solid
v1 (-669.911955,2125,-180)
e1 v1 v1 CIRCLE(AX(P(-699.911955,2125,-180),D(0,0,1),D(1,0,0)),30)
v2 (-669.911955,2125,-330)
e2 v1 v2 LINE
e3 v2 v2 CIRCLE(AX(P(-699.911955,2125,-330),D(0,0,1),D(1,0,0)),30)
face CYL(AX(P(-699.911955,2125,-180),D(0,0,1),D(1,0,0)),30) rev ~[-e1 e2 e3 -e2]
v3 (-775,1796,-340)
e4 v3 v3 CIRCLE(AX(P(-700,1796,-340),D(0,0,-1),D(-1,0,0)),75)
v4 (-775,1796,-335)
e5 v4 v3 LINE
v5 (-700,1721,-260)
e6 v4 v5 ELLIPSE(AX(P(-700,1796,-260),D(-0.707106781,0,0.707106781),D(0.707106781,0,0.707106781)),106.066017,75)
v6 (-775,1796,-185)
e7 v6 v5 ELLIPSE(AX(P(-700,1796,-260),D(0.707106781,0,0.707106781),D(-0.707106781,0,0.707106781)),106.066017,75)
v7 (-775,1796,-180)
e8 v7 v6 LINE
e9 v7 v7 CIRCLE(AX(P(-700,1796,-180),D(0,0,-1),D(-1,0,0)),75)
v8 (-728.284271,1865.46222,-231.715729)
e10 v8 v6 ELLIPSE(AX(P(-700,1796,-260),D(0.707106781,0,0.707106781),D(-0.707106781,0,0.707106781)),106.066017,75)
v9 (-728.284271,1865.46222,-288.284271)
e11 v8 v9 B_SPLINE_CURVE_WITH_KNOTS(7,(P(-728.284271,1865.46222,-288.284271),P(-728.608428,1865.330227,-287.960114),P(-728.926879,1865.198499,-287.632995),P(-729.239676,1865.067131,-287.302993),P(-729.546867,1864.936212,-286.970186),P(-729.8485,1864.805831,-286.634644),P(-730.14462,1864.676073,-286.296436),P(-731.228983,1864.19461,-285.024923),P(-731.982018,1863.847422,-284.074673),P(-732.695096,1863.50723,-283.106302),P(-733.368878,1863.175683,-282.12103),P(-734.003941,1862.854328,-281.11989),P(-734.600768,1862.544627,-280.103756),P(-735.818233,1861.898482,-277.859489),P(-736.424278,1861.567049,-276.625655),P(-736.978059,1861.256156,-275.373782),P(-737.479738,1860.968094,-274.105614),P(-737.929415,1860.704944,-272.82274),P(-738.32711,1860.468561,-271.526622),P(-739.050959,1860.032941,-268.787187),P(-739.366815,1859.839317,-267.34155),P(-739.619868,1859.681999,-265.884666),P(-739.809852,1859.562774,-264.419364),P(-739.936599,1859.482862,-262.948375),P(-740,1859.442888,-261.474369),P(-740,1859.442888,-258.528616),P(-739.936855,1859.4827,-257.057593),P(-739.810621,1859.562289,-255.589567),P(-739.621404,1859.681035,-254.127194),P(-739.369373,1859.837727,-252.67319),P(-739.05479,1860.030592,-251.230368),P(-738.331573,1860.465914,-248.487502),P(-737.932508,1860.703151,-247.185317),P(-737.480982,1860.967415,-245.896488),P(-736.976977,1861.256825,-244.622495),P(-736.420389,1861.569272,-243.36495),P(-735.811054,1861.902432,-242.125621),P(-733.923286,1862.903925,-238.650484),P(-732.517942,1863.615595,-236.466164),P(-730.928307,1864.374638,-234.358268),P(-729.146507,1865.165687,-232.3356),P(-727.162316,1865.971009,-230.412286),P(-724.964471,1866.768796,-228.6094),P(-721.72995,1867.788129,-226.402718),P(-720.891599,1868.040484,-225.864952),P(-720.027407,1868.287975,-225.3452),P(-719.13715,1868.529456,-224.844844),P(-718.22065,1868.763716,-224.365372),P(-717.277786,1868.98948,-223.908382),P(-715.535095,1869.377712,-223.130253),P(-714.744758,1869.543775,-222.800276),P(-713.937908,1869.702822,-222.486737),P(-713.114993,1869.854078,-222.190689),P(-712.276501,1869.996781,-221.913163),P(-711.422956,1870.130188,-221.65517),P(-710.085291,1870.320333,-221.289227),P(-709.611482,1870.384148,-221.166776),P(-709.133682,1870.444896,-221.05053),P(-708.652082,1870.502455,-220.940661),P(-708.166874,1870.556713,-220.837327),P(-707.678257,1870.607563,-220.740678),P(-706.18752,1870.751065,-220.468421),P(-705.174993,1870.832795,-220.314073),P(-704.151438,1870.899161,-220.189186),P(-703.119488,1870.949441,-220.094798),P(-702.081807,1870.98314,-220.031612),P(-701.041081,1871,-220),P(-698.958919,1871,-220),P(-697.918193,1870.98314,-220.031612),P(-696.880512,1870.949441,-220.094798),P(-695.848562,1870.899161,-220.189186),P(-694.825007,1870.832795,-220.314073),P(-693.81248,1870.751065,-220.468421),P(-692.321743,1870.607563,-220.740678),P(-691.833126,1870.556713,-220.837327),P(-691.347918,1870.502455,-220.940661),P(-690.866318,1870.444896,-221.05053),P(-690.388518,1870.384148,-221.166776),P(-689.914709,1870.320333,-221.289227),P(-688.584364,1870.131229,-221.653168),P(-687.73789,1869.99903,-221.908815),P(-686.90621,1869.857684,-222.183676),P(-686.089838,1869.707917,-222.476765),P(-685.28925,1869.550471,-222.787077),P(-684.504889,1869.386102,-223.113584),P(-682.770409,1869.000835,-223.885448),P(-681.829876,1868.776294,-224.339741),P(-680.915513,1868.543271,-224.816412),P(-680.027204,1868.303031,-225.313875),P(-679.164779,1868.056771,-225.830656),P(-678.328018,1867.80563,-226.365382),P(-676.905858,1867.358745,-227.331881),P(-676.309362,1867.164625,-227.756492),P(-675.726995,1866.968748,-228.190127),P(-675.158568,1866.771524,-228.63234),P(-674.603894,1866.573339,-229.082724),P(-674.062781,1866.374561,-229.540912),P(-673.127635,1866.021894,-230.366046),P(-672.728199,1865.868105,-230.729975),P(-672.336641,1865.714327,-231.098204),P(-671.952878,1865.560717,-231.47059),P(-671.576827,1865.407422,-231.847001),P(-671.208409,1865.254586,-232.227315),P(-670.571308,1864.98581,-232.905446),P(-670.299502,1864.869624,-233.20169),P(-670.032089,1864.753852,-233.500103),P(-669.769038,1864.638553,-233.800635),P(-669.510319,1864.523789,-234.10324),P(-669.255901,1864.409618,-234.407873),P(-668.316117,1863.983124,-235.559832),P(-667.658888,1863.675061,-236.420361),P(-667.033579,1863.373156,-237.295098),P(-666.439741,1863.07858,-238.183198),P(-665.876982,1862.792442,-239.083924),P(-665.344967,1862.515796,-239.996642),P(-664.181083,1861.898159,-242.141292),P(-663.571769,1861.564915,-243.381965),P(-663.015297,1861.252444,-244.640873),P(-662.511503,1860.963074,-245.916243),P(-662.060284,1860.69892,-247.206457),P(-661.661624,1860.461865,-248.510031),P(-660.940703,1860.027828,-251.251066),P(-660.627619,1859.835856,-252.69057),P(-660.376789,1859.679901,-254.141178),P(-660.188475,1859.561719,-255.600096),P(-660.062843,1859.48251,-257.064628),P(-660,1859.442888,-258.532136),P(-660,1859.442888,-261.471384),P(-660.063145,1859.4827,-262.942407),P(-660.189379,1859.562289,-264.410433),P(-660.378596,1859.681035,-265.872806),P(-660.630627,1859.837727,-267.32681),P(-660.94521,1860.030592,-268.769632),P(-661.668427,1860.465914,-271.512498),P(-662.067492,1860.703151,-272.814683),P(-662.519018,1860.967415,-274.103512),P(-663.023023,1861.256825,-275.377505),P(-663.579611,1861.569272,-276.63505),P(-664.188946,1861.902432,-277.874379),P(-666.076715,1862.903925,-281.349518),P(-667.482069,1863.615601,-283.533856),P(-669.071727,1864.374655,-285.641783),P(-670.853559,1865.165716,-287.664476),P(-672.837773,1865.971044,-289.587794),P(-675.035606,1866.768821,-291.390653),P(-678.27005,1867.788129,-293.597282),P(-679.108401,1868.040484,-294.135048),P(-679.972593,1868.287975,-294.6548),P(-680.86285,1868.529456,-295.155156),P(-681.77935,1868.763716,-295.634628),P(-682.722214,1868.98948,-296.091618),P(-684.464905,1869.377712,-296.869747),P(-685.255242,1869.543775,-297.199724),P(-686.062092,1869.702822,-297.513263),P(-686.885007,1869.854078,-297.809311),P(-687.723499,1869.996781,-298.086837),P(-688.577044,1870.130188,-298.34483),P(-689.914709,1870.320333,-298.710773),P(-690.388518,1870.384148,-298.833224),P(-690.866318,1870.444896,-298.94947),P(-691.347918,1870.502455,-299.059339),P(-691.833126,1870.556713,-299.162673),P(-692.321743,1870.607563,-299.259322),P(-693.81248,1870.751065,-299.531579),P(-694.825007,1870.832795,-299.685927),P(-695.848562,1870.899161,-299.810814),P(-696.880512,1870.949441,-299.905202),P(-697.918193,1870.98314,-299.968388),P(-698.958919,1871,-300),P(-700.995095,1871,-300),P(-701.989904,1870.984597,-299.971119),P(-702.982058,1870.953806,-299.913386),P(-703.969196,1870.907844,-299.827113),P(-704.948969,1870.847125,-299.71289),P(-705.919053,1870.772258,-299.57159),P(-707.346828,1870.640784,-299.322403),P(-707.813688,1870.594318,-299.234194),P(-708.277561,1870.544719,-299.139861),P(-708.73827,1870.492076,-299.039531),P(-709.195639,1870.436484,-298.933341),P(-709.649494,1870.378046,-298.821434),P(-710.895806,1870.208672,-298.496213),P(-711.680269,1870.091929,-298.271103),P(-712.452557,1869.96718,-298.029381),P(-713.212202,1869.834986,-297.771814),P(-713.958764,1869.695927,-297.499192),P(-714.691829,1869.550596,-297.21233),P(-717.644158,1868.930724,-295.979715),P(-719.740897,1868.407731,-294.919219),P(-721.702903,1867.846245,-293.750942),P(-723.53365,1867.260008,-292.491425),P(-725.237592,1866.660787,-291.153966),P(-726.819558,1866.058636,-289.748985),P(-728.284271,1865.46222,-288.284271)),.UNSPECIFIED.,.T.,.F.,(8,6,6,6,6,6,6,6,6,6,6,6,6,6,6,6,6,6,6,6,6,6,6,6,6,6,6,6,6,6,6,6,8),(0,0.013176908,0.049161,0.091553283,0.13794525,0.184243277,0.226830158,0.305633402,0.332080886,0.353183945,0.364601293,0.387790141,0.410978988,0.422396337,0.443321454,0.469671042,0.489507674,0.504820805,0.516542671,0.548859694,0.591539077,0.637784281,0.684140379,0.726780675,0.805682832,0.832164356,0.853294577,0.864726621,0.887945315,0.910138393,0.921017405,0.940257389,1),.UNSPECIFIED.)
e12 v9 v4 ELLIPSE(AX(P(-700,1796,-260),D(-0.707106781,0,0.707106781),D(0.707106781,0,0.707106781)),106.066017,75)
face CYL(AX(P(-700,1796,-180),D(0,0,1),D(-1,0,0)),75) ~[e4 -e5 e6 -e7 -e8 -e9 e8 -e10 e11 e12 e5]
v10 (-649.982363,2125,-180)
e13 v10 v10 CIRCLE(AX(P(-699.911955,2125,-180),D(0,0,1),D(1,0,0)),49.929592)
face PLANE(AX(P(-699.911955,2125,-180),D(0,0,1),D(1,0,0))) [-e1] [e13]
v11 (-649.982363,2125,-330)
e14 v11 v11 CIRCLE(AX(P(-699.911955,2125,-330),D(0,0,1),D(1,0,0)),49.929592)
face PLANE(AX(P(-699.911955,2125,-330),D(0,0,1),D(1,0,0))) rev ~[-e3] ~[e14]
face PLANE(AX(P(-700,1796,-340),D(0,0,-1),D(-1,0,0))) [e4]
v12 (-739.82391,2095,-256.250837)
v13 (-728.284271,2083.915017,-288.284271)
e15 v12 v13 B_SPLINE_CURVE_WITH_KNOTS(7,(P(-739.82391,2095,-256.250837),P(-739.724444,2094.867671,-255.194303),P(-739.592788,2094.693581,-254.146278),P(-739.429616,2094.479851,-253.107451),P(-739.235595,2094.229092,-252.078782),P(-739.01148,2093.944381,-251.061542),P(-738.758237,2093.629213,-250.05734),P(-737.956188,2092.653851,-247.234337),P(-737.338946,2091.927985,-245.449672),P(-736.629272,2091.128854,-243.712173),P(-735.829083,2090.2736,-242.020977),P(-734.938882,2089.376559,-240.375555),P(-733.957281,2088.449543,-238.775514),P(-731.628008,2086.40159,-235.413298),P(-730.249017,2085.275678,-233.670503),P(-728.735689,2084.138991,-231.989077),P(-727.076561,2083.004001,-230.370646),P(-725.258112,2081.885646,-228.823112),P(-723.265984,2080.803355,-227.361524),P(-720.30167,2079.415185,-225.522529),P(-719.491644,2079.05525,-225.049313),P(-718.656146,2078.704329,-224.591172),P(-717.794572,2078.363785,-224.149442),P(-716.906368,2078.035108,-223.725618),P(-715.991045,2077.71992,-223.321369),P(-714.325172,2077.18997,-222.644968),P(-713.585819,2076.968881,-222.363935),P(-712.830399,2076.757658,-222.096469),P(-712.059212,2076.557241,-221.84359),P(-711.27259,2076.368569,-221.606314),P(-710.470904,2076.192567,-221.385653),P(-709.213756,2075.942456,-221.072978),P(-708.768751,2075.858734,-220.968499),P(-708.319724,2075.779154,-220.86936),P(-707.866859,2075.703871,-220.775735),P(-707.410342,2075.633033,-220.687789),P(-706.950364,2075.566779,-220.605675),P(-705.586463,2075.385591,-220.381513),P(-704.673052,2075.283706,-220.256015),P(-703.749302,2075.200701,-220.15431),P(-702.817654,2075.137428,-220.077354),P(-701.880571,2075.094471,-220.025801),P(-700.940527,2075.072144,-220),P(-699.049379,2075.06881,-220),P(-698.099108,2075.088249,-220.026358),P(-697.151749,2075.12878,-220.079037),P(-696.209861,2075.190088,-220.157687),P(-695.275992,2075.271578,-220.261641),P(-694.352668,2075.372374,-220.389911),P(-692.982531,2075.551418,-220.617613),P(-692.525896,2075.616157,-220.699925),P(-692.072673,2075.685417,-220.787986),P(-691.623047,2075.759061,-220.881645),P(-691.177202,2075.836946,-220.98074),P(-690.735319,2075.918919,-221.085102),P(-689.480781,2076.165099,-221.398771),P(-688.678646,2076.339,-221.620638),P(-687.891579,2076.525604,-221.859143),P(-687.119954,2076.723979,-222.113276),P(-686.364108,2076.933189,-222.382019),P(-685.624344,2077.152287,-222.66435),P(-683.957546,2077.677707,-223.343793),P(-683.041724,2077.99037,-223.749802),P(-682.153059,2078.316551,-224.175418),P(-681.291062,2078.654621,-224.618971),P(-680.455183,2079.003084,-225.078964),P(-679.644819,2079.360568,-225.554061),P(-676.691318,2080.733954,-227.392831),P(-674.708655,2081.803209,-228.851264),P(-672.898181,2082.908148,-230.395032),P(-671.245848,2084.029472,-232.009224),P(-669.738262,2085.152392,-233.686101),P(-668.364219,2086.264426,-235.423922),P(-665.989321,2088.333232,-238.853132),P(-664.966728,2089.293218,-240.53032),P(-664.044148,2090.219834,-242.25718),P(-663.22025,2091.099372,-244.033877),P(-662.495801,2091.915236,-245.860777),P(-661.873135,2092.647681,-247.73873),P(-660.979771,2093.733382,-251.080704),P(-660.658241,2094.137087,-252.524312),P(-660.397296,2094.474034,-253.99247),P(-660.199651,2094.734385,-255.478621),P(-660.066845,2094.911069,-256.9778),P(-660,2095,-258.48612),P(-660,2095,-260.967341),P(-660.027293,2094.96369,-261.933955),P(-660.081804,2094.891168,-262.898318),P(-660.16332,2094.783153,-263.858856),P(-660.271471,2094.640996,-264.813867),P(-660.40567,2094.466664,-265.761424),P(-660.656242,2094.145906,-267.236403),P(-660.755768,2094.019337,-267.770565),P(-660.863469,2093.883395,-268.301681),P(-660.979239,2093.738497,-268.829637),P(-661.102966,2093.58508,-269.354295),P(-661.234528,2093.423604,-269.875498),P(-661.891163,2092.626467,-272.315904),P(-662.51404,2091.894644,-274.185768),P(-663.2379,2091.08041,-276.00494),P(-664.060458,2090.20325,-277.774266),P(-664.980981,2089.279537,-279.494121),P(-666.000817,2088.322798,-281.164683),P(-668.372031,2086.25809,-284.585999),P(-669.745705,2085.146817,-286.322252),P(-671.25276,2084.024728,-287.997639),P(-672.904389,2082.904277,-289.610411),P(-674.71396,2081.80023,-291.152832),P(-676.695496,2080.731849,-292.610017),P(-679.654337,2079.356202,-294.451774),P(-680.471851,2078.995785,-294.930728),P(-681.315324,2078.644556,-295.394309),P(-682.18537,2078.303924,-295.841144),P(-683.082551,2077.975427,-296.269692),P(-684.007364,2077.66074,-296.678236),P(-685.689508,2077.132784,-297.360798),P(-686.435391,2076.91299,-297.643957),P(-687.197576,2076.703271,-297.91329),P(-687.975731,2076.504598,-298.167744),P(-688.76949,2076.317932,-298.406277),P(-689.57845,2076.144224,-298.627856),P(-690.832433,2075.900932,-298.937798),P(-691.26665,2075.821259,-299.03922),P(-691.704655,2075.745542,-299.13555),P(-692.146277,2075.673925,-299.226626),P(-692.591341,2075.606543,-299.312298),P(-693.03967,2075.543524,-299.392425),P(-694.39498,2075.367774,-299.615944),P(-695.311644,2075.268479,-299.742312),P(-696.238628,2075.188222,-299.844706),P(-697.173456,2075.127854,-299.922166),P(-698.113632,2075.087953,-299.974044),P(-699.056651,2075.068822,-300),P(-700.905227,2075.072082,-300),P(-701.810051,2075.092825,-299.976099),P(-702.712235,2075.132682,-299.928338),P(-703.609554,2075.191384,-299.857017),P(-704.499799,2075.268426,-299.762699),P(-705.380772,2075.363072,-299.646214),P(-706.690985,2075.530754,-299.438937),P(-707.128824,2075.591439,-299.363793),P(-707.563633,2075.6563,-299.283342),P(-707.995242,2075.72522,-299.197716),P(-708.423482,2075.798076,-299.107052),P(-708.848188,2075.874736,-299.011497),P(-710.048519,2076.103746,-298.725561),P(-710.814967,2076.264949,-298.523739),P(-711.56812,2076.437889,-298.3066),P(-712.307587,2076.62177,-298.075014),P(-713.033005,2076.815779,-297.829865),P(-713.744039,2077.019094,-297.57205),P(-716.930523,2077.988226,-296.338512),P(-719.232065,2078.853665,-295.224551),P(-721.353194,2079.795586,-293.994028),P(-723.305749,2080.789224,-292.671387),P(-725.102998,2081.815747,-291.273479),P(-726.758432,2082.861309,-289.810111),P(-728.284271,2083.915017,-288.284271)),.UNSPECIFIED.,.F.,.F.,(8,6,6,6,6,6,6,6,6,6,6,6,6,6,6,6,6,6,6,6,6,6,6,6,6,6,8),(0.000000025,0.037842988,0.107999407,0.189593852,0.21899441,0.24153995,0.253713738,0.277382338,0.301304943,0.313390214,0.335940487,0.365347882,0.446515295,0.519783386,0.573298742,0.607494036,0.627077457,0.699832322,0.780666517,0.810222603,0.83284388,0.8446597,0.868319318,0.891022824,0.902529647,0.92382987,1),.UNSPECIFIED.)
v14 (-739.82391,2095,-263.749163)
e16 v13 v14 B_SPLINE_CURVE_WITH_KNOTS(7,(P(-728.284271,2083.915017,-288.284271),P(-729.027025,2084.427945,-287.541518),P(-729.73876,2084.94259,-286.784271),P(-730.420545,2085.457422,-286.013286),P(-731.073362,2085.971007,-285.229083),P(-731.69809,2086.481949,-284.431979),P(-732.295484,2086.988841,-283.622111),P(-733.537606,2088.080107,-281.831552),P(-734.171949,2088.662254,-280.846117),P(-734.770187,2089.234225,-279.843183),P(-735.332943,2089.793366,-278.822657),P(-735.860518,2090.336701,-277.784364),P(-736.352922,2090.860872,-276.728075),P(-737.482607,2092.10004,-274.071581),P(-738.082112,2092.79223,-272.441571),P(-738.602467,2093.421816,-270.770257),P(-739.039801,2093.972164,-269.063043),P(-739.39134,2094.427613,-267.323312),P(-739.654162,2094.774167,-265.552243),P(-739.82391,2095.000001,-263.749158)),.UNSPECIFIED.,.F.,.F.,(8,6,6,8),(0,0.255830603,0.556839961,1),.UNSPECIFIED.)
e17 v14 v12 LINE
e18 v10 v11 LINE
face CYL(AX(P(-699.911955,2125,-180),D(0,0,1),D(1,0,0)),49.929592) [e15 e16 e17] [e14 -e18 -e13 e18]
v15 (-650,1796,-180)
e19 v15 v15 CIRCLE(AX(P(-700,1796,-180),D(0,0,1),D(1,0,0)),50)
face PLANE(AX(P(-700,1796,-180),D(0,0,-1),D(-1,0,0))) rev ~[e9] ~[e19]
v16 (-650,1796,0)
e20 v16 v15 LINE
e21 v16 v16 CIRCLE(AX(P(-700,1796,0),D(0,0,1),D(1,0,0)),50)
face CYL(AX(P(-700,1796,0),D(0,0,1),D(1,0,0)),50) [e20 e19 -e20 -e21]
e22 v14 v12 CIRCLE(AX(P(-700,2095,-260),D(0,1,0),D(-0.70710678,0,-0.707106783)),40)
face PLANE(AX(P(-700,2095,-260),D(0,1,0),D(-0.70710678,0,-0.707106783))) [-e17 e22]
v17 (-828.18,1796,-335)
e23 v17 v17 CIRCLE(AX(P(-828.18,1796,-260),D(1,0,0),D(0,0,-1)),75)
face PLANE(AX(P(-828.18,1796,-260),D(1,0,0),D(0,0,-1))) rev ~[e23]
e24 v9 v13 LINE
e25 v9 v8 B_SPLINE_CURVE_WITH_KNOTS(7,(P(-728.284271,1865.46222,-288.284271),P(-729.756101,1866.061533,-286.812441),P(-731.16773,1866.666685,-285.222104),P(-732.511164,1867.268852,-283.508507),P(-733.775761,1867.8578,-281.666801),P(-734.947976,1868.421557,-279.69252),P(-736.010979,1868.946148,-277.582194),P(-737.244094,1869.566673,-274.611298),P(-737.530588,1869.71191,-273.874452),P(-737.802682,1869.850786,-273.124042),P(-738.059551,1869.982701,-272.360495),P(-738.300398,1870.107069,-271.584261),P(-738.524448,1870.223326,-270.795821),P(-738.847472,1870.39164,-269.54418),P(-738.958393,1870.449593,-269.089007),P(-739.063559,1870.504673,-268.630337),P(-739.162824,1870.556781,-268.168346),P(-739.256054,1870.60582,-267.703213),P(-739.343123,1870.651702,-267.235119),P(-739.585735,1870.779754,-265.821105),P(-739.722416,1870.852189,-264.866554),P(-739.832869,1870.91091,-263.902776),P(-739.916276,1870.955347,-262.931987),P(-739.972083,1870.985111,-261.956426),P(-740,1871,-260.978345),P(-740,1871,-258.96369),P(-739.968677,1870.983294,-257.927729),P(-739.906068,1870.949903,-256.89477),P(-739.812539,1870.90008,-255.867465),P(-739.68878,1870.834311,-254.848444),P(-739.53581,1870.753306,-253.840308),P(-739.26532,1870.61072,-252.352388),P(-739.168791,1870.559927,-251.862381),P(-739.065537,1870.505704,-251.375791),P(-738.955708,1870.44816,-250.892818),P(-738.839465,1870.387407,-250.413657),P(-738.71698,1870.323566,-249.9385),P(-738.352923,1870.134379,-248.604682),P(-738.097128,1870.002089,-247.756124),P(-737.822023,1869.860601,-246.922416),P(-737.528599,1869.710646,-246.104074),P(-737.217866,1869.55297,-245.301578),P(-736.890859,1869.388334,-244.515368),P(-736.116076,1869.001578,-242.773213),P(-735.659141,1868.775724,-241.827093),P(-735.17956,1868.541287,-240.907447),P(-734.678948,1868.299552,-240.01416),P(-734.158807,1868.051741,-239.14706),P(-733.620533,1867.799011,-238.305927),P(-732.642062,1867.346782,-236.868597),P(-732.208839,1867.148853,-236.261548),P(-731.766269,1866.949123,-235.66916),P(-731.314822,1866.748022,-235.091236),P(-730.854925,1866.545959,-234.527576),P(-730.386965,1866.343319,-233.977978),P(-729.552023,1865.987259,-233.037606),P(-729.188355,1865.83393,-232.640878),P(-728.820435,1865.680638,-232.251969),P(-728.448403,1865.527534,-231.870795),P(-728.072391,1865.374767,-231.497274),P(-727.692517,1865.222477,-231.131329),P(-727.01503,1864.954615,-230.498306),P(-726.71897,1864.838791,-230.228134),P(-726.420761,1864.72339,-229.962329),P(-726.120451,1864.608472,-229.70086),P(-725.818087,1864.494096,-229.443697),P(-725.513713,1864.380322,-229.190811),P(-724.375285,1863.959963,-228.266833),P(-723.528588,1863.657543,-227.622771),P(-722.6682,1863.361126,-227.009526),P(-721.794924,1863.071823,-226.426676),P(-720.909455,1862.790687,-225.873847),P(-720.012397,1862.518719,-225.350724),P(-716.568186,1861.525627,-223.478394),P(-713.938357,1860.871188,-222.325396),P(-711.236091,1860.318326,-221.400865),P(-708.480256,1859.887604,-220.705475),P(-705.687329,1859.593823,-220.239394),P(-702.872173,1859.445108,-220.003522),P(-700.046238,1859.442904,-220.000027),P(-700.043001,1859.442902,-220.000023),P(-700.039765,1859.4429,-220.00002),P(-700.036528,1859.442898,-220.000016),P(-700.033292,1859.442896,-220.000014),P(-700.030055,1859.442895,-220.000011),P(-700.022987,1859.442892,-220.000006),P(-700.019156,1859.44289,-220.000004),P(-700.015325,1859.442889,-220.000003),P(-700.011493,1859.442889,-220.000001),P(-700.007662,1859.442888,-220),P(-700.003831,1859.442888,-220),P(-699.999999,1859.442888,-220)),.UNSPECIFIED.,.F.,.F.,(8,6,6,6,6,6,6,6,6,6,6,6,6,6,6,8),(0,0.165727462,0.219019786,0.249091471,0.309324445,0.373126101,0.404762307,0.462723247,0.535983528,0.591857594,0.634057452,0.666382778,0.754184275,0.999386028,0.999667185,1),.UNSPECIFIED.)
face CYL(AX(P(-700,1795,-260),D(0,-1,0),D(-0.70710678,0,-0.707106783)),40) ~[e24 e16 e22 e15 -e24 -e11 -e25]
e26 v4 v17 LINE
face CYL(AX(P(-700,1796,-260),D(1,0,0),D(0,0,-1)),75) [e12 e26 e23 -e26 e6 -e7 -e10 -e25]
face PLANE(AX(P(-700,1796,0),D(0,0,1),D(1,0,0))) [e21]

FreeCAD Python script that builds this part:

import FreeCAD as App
import Part
import Sketcher

V = App.Vector
Q = App.Units.Quantity

doc = App.newDocument("Part")
body = doc.addObject("PartDesign::Body", "Body")

# Sketch on XY plane
sketch1 = body.newObject("Sketcher::SketchObject", "Sketch")
sketch1.AttachmentSupport = (doc.getObject("XY_Plane"), [""])
sketch1.MapMode = "FlatFace"
sketch1.addGeometry(Part.Circle(V(-700, 1796, 0), V(0, 0, 1), 50), False)
sketch1.addConstraint([
    Sketcher.Constraint("Diameter", 0, Q("100 mm")),
    Sketcher.Constraint("DistanceX", 0, 3, -1, 1, Q("700 mm")),
    Sketcher.Constraint("DistanceY", -1, 1, 0, 3, Q("1796 mm")),
])
pad1 = body.newObject("PartDesign::Pad", "Pad")
pad1.Profile = sketch1
pad1.Length = 180
pad1.Reversed = True

# Sketch on XY plane
sketch2 = body.newObject("Sketcher::SketchObject", "Sketch001")
sketch2.AttachmentSupport = (doc.getObject("XY_Plane"), [""])
sketch2.MapMode = "FlatFace"
sketch2.AttachmentOffset = App.Placement(V(0, 0, -180), App.Rotation())
sketch2.addGeometry(Part.Circle(V(-700, 1796, 0), V(0, 0, 1), 75), False)
sketch2.addConstraint([
    Sketcher.Constraint("Diameter", 0, Q("150 mm")),
    Sketcher.Constraint("DistanceX", 0, 3, -1, 1, Q("700 mm")),
    Sketcher.Constraint("DistanceY", -1, 1, 0, 3, Q("1796 mm")),
])
pad2 = body.newObject("PartDesign::Pad", "Pad001")
pad2.Profile = sketch2
pad2.Length = 160
pad2.Reversed = True

# Sketch on YZ plane
sketch3 = body.newObject("Sketcher::SketchObject", "Sketch002")
sketch3.AttachmentSupport = (doc.getObject("YZ_Plane"), [""])
sketch3.MapMode = "FlatFace"
sketch3.AttachmentOffset = App.Placement(V(0, 0, -700), App.Rotation())
sketch3.addGeometry(Part.Circle(V(1796, -260, 0), V(0, 0, 1), 75), False)
sketch3.addConstraint([
    Sketcher.Constraint("Diameter", 0, Q("150 mm")),
    Sketcher.Constraint("DistanceX", -1, 1, 0, 3, Q("1796 mm")),
    Sketcher.Constraint("DistanceY", 0, 3, -1, 1, Q("260 mm")),
])
pad3 = body.newObject("PartDesign::Pad", "Pad002")
pad3.Profile = sketch3
pad3.Length = 128.18
pad3.Reversed = True

# Sketch on XZ plane
sketch4 = body.newObject("Sketcher::SketchObject", "Sketch003")
sketch4.AttachmentSupport = (doc.getObject("XZ_Plane"), [""])
sketch4.MapMode = "FlatFace"
sketch4.AttachmentOffset = App.Placement(V(0, 0, -1795), App.Rotation())
sketch4.addGeometry(Part.Circle(V(-700, -260, 0), V(0, 0, 1), 40), False)
sketch4.addConstraint([
    Sketcher.Constraint("Diameter", 0, Q("80 mm")),
    Sketcher.Constraint("DistanceX", 0, 3, -1, 1, Q("700 mm")),
    Sketcher.Constraint("DistanceY", 0, 3, -1, 1, Q("260 mm")),
])
pad4 = body.newObject("PartDesign::Pad", "Pad003")
pad4.Profile = sketch4
pad4.Length = 300
pad4.Reversed = True

# Sketch on XY plane
sketch5 = body.newObject("Sketcher::SketchObject", "Sketch004")
sketch5.AttachmentSupport = (doc.getObject("XY_Plane"), [""])
sketch5.MapMode = "FlatFace"
sketch5.AttachmentOffset = App.Placement(V(0, 0, -180), App.Rotation())
sketch5.addGeometry([
    Part.Circle(V(-699.911955, 2125, 0), V(0, 0, 1), 49.929592),
    Part.Circle(V(-699.911955, 2125, 0), V(0, 0, 1), 30),
], False)
sketch5.addConstraint([
    Sketcher.Constraint("Coincident", 1, 3, 0, 3),
    Sketcher.Constraint("Diameter", 1, Q("60 mm")),
    Sketcher.Constraint("DistanceY", -1, 1, 0, 3, Q("2125 mm")),
    Sketcher.Constraint("Diameter", 0, Q("99.859184 mm")),
    Sketcher.Constraint("DistanceX", 0, 3, -1, 1, Q("699.911955 mm")),
])
pad5 = body.newObject("PartDesign::Pad", "Pad004")
pad5.Profile = sketch5
pad5.Length = 150
pad5.Reversed = True

doc.recompute()
